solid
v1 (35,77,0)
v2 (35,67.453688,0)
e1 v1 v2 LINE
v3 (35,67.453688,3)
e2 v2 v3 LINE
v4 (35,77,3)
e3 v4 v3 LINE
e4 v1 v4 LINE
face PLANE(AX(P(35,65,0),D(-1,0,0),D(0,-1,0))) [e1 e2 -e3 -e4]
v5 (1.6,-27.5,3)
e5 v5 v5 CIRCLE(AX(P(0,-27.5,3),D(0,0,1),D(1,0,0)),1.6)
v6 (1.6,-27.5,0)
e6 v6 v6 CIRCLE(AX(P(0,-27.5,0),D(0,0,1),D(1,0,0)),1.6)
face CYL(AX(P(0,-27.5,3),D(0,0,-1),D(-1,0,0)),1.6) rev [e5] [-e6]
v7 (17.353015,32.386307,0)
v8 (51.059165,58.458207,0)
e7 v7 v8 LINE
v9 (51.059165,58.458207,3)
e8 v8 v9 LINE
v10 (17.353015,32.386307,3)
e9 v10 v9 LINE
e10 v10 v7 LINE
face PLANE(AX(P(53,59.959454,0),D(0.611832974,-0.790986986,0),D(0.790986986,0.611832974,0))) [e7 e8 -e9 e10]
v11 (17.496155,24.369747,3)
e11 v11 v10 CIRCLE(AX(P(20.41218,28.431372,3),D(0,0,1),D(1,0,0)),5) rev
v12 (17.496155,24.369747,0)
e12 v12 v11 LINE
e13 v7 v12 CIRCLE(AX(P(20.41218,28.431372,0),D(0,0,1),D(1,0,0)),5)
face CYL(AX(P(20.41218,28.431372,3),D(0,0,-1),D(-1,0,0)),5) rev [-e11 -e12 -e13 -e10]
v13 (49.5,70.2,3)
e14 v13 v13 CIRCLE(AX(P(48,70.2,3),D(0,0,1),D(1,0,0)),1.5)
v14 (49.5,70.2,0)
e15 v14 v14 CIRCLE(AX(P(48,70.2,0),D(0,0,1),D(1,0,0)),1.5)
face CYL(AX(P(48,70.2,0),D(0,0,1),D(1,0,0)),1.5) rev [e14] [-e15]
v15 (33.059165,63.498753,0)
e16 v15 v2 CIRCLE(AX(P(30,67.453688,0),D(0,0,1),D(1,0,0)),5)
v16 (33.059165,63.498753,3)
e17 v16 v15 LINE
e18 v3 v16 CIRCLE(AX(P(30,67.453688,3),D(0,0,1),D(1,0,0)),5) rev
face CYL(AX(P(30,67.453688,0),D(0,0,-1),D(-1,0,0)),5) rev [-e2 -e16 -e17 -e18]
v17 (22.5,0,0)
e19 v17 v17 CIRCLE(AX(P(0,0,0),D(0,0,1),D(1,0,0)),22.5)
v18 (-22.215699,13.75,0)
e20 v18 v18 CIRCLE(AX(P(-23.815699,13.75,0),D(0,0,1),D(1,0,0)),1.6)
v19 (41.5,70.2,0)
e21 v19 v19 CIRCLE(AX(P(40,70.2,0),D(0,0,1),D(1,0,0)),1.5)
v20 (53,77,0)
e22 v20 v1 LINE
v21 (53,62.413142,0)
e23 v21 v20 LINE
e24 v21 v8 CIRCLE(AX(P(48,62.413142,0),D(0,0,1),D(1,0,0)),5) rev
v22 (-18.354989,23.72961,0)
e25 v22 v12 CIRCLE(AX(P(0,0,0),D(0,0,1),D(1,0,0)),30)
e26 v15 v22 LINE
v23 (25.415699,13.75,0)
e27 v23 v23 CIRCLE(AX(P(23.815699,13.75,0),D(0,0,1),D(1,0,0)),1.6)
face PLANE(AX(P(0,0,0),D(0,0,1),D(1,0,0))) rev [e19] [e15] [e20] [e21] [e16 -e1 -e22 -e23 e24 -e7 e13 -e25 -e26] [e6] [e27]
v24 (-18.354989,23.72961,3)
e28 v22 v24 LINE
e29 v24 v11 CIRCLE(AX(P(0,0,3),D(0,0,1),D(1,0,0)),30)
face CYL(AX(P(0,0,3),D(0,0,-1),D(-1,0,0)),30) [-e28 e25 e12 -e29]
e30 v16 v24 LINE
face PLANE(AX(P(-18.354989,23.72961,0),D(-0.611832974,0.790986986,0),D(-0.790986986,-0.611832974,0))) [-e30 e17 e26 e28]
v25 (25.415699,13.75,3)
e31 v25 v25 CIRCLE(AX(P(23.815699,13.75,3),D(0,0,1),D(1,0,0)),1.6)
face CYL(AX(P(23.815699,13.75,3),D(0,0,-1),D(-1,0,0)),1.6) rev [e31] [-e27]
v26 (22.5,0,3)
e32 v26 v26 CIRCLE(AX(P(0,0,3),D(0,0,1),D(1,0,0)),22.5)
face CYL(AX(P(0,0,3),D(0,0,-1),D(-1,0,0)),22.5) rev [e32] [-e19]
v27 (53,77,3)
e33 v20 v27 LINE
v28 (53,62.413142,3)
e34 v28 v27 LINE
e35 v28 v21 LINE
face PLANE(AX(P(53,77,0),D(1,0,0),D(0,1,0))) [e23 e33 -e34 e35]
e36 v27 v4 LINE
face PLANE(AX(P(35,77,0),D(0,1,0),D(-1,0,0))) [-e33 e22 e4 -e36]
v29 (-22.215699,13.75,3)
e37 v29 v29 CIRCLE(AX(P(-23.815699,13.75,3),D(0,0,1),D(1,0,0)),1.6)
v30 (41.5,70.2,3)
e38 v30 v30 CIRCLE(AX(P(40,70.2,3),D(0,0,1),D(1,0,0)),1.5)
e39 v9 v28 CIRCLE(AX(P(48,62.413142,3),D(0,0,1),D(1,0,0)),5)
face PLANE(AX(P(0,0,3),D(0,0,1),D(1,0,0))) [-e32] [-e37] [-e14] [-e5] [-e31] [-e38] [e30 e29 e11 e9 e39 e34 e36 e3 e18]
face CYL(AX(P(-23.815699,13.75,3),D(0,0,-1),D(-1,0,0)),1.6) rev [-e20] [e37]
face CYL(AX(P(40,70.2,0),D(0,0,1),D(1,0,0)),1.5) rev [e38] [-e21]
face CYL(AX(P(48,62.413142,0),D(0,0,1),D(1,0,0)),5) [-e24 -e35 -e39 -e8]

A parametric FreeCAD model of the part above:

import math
import FreeCAD as App
import Part
import Sketcher
Q = App.Units.Quantity


def edges_at(feature, points):
    """Names of the edges that pass closest to the given points."""
    edges = feature.Shape.Edges
    near = lambda p: min(range(len(edges)), key=lambda i: edges[i].distToShape(Part.Vertex(*p))[0])
    return sorted({f"Edge{near(p) + 1}" for p in points})

doc = App.newDocument("Part")
body = doc.addObject("PartDesign::Body", "Body")

sketch1 = doc.addObject("Sketcher::SketchObject", "Sketch")
body.addObject(sketch1)
sketch1.AttachmentSupport = (doc.XY_Plane, [""])
sketch1.MapMode = "FlatFace"
sketch1.addGeometry([
    Part.Circle(App.Vector(0, 0, 0), App.Vector(0, 0, 1), 30),
    Part.Circle(App.Vector(0, -27.5, 0), App.Vector(0, 0, 1), 1.6),
    Part.Circle(App.Vector(-23.8, 13.8, 0), App.Vector(0, 0, 1), 1.6),
    Part.Circle(App.Vector(0, 0, 0), App.Vector(0, 0, 1), 22.5),
    Part.Circle(App.Vector(23.8, 13.8, 0), App.Vector(0, 0, 1), 1.6),
], False)
sketch1.addConstraint([
    Sketcher.Constraint("Coincident", 0, 3, -1, 1),
    Sketcher.Constraint("Coincident", 3, 3, -1, 1),
    Sketcher.Constraint("Equal", 1, 2),
    Sketcher.Constraint("Equal", 2, 4),
    Sketcher.Constraint("Symmetric", 2, 3, 4, 3, -2),
    Sketcher.Constraint("PointOnObject", 1, 3, -2),
    Sketcher.Constraint("Diameter", 0, Q("60 mm")),
    Sketcher.Constraint("Diameter", 3, Q("45 mm")),
    Sketcher.Constraint("Diameter", 1, Q("3.2 mm")),
    Sketcher.Constraint("DistanceY", 1, 3, -1, 1, Q("27.5 mm")),
    Sketcher.Constraint("DistanceY", -1, 1, 2, 3, Q("13.75 mm")),
    Sketcher.Constraint("DistanceX", 2, 3, -1, 1, Q("23.815699 mm")),
])
pad1 = doc.addObject("PartDesign::Pad", "Pad")
body.addObject(pad1)
pad1.Profile = sketch1
pad1.Length = 3

sketch2 = doc.addObject("Sketcher::SketchObject", "Sketch001")
body.addObject(sketch2)
sketch2.AttachmentSupport = (doc.XY_Plane, [""])
sketch2.MapMode = "FlatFace"
sketch2.AttachmentOffset = App.Placement(App.Vector(0, 0, 3), App.Rotation())
sketch2.addGeometry([
    Part.LineSegment(App.Vector(35, 65, 0), App.Vector(-18.4, 23.7, 0)),
    Part.LineSegment(App.Vector(-18.4, 23.7, 0), App.Vector(-0.8, 26.1, 0)),
    Part.ArcOfCircle(Part.Circle(App.Vector(0, 27.5, 0), App.Vector(0, 0, 1), 1.6), math.radians(-45), math.radians(240)),
    Part.LineSegment(App.Vector(1.1, 26.4, 0), App.Vector(11.4, 27.8, 0)),
    Part.LineSegment(App.Vector(11.4, 27.8, 0), App.Vector(53, 60, 0)),
    Part.LineSegment(App.Vector(53, 60, 0), App.Vector(53, 77, 0)),
    Part.LineSegment(App.Vector(53, 77, 0), App.Vector(35, 77, 0)),
    Part.LineSegment(App.Vector(35, 77, 0), App.Vector(35, 65, 0)),
    Part.Circle(App.Vector(48, 70.2, 0), App.Vector(0, 0, 1), 1.5),
    Part.Circle(App.Vector(40, 70.2, 0), App.Vector(0, 0, 1), 1.5),
], False)
sketch2.addConstraint([
    Sketcher.Constraint("Coincident", 0, 2, 1, 1),
    Sketcher.Constraint("Coincident", 1, 2, 2, 2),
    Sketcher.Constraint("Coincident", 2, 1, 3, 1),
    Sketcher.Constraint("Coincident", 3, 2, 4, 1),
    Sketcher.Constraint("Coincident", 4, 2, 5, 1),
    Sketcher.Constraint("Coincident", 5, 2, 6, 1),
    Sketcher.Constraint("Coincident", 6, 2, 7, 1),
    Sketcher.Constraint("Coincident", 7, 2, 0, 1),
    Sketcher.Constraint("Vertical", 5),
    Sketcher.Constraint("Horizontal", 6),
    Sketcher.Constraint("Vertical", 7),
    Sketcher.Constraint("Equal", 8, 9),
    Sketcher.Constraint("PointOnObject", 2, 3, -2),
    Sketcher.Constraint("Parallel", 1, 3),
    Sketcher.Constraint("Parallel", 0, 4),
    Sketcher.Constraint("Horizontal", 8, 3, 9, 3),
    Sketcher.Constraint("Diameter", 8, Q("3 mm")),
    Sketcher.Constraint("Radius", 2, Q("1.6 mm")),
    Sketcher.Constraint("DistanceX", 6, 2, 6, 1, Q("18 mm")),
    Sketcher.Constraint("DistanceY", 7, 2, 7, 1, Q("12 mm")),
    Sketcher.Constraint("DistanceX", -1, 1, 8, 3, Q("48 mm")),
    Sketcher.Constraint("DistanceX", -1, 1, 9, 3, Q("40 mm")),
    Sketcher.Constraint("DistanceX", -1, 1, 4, 2, Q("53 mm")),
    Sketcher.Constraint("DistanceY", -1, 1, 5, 2, Q("77 mm")),
    Sketcher.Constraint("DistanceY", -1, 1, 2, 3, Q("27.5 mm")),
    Sketcher.Constraint("DistanceY", -1, 1, 8, 3, Q("70.2 mm")),
    Sketcher.Constraint("Distance", 1, Q("17.721771 mm")),
    Sketcher.Constraint("Distance", 4, Q("52.626719 mm")),
    Sketcher.Constraint("DistanceY", 5, 1, 5, 2, Q("17.040546 mm")),
    Sketcher.Constraint("DistanceX", 0, 2, -1, 1, Q("18.354989 mm")),
    Sketcher.Constraint("DistanceY", -1, 1, 0, 2, Q("23.72961 mm")),
])
pad2 = doc.addObject("PartDesign::Pad", "Pad001")
body.addObject(pad2)
pad2.Profile = sketch2
pad2.Length = 3
pad2.Reversed = True
doc.recompute()

fillet = doc.addObject("PartDesign::Fillet", "Fillet")
body.addObject(fillet)
fillet.Base = (pad2, edges_at(pad2, [(11.373, 27.761, 1.5)]))
fillet.Radius = 5
doc.recompute()

fillet2 = doc.addObject("PartDesign::Fillet", "Fillet001")
body.addObject(fillet2)
fillet2.Base = (fillet, edges_at(fillet, [(35, 65, 1.5), (53, 59.959, 1.5)]))
fillet2.Radius = 5

doc.recompute()
